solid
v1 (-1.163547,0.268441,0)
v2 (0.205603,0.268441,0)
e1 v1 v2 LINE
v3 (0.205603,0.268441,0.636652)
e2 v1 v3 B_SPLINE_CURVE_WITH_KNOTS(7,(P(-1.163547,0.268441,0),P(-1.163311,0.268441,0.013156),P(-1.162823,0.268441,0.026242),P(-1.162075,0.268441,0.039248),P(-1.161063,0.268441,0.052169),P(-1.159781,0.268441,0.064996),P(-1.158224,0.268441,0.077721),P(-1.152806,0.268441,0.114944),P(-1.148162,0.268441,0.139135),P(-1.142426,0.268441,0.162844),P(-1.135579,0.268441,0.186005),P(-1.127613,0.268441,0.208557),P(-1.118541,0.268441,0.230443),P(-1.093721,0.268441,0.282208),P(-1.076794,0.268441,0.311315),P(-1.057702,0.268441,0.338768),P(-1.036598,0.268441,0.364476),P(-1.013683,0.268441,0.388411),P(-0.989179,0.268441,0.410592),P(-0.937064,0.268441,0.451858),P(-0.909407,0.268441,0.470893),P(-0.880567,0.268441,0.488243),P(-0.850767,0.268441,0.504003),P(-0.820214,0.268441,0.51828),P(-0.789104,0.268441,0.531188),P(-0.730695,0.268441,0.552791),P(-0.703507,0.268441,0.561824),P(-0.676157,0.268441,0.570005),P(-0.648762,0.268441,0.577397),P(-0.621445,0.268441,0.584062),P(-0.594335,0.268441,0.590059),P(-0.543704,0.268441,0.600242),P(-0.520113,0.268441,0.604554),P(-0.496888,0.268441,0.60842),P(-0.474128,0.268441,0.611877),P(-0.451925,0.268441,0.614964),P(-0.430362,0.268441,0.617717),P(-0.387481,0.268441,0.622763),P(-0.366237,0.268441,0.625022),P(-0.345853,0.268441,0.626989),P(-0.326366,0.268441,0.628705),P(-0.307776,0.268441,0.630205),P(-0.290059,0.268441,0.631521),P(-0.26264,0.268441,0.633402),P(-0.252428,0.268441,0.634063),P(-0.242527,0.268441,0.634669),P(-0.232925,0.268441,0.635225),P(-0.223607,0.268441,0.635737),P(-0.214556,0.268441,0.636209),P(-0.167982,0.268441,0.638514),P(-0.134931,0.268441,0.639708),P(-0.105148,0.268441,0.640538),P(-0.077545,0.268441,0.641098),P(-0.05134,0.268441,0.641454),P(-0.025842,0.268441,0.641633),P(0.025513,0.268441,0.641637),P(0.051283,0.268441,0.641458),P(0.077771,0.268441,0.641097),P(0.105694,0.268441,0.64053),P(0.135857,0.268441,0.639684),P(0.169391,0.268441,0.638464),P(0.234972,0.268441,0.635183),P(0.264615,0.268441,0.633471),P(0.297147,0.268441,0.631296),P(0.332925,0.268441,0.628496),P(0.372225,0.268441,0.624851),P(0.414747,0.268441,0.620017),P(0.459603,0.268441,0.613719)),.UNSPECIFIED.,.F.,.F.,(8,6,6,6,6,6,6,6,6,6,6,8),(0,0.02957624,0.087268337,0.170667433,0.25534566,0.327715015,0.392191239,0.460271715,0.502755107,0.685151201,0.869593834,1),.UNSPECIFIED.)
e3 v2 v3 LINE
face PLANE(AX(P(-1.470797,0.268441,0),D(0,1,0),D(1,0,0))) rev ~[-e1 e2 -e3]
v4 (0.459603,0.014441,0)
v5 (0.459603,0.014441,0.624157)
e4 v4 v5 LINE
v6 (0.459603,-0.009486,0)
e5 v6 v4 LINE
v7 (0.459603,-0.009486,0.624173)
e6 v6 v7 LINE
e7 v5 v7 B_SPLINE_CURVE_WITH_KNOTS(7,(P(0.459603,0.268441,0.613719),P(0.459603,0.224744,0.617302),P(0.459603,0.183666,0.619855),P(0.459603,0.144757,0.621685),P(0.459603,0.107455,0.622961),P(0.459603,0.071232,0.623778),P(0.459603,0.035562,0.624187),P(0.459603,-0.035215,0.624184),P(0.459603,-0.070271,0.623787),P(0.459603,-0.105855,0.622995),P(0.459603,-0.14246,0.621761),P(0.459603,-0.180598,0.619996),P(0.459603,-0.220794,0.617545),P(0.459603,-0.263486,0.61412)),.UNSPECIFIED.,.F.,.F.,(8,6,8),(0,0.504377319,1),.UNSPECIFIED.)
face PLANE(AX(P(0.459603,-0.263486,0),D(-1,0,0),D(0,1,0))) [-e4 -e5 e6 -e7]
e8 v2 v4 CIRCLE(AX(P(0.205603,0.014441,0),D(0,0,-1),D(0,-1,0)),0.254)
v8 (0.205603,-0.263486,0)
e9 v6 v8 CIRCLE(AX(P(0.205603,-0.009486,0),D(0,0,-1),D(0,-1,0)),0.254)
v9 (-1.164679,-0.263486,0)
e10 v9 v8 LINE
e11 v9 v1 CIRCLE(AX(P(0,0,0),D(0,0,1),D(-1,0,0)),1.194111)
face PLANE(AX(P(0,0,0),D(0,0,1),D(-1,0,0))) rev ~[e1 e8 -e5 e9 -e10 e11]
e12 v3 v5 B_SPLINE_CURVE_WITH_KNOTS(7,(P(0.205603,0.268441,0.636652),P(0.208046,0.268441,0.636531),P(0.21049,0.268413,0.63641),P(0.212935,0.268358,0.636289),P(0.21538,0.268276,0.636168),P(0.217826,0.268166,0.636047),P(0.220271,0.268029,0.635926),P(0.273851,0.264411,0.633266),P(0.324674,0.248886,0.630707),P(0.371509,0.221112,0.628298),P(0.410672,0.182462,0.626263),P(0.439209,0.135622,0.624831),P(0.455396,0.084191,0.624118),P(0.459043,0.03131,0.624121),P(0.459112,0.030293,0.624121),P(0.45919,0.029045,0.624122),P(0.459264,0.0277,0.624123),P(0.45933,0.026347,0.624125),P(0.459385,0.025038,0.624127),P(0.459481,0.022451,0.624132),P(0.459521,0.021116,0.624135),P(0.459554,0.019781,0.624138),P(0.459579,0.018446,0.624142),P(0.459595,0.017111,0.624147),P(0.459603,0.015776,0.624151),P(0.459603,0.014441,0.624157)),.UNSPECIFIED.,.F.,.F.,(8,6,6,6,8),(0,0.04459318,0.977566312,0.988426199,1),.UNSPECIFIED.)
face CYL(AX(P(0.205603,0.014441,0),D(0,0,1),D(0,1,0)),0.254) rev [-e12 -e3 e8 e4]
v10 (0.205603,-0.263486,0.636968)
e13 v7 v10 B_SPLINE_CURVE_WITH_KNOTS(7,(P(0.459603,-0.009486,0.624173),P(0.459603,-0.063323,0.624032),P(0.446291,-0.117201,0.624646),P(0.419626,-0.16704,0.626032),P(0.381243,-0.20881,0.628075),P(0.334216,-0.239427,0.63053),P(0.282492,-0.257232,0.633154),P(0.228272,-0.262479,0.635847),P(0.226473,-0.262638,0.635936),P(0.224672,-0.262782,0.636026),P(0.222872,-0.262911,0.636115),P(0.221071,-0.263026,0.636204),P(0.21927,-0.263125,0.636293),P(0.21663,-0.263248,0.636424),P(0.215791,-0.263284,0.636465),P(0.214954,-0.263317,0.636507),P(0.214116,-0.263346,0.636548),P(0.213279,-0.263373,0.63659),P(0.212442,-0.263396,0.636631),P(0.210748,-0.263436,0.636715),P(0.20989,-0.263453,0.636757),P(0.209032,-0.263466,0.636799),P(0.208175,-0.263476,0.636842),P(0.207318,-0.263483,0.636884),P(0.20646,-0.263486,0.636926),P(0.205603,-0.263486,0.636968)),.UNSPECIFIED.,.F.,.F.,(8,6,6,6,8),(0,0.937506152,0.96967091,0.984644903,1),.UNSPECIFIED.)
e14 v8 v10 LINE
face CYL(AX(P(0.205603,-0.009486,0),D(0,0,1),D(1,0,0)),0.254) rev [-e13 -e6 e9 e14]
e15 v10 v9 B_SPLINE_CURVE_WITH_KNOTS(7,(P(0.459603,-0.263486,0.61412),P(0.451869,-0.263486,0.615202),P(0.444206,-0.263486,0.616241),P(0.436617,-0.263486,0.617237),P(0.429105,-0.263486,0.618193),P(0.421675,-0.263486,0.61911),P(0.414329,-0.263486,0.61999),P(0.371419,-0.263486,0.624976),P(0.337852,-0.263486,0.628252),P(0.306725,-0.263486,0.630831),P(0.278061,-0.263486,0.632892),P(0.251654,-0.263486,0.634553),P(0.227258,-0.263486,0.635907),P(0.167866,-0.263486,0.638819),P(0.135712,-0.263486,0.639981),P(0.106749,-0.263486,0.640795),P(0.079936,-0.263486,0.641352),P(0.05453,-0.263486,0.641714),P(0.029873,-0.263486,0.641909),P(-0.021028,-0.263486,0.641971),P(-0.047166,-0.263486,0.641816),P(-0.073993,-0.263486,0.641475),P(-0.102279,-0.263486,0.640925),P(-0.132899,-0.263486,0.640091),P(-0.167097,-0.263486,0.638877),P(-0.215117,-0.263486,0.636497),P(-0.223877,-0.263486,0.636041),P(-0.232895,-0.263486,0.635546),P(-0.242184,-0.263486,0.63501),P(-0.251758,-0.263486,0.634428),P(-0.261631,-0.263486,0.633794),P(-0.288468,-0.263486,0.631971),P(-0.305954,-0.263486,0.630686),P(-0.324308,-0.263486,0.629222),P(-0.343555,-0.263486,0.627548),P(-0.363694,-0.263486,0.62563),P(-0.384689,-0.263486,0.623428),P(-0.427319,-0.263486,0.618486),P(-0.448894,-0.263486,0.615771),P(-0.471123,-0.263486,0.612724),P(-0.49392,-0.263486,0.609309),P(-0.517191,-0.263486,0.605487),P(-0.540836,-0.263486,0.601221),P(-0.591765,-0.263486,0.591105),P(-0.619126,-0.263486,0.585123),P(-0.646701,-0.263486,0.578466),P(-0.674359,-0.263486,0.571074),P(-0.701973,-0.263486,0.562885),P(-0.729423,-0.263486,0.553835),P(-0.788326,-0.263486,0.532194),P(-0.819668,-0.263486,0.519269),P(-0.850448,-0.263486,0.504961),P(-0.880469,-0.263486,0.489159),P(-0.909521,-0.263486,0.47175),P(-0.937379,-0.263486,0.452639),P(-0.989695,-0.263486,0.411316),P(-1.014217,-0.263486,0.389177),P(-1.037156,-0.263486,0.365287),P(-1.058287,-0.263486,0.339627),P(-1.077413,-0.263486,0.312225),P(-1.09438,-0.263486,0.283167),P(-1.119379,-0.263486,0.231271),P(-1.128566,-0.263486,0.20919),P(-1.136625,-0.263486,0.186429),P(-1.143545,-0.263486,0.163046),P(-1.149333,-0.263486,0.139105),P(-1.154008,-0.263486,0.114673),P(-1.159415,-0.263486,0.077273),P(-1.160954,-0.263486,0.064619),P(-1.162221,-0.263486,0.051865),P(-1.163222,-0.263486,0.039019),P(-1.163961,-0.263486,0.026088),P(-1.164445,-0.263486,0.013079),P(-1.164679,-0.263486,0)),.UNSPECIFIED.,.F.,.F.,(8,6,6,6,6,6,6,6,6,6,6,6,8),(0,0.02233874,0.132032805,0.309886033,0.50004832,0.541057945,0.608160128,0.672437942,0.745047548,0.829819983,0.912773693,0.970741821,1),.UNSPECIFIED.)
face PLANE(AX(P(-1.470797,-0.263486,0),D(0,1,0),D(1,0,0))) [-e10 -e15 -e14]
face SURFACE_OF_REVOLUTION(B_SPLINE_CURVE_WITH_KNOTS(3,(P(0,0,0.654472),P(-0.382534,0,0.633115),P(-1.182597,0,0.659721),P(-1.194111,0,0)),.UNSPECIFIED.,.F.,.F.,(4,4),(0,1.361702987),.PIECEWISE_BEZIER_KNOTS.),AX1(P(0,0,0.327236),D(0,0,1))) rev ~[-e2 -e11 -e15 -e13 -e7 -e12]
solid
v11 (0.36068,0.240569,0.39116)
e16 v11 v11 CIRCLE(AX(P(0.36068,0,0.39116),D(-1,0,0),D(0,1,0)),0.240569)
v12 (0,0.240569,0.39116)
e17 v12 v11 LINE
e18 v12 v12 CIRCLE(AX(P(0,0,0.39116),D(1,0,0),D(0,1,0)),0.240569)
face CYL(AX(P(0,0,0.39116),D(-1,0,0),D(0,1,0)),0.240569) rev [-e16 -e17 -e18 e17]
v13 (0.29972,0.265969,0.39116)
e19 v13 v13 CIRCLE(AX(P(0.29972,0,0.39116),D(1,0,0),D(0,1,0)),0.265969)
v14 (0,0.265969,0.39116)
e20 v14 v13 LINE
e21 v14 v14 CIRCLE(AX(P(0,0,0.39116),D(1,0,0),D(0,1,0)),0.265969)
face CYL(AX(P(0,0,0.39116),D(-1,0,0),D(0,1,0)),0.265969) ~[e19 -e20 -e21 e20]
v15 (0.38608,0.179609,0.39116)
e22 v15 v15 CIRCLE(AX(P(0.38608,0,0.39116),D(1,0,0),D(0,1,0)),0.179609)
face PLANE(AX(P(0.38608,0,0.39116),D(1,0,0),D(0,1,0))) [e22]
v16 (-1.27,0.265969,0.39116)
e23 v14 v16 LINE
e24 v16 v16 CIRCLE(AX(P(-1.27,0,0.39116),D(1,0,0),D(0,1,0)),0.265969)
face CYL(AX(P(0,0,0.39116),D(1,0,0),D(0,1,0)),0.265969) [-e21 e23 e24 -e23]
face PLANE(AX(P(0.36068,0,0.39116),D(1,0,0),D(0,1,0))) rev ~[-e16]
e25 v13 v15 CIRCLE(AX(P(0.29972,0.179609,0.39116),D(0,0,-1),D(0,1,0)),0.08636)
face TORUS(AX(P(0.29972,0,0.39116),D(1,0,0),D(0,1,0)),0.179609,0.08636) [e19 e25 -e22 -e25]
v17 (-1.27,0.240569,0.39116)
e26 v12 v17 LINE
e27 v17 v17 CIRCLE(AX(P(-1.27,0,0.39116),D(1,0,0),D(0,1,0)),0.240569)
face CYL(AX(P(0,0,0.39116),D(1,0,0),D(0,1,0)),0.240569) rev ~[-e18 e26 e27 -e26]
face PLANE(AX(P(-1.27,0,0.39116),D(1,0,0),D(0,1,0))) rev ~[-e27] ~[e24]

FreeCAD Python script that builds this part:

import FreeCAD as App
import Part
import Sketcher
from FreeCAD import Vector
Q = App.Units.Quantity


def edges_at(feature, points):
    """Names of the edges that pass closest to the given points."""
    edges = feature.Shape.Edges
    near = lambda p: min(range(len(edges)), key=lambda i: edges[i].distToShape(Part.Vertex(*p))[0])
    return sorted({f"Edge{near(p) + 1}" for p in points})


def faces_at(feature, points):
    """Names of the faces that lie closest to the given points."""
    faces = feature.Shape.Faces
    near = lambda p: min(range(len(faces)), key=lambda i: faces[i].distToShape(Part.Vertex(*p))[0])
    return sorted({f"Face{near(p) + 1}" for p in points})

doc = App.newDocument("Part")
body = doc.addObject("PartDesign::Body", "Body")

sketch1 = body.newObject("Sketcher::SketchObject", "Sketch")
sketch1.AttachmentSupport = (doc.getObject("XZ_Plane"), [""])
sketch1.MapMode = "FlatFace"
sketch1.addGeometry(Part.LineSegment(Vector(0, 0, 0), Vector(0, 0.654472, 0)), False)
sketch1.addGeometry(Part.BSplineCurve([Vector(0, 0.654472, 0), Vector(-0.382534, 0.633115, 0), Vector(-1.182597, 0.659721, 0), Vector(-1.194111, 0, 0)], [4, 4], [0, 1.361702987], False, 3, [1, 1, 1, 1], False), False)
sketch1.addGeometry(Part.LineSegment(Vector(-1.194111, 0, 0), Vector(0, 0, 0)), False)
sketch1.addConstraint(Sketcher.Constraint("Block", 1))
sketch1.addConstraint(Sketcher.Constraint("Coincident", 0, 2, 1, 1))
sketch1.addConstraint(Sketcher.Constraint("Coincident", 1, 2, 2, 1))
sketch1.addConstraint(Sketcher.Constraint("Coincident", 2, 2, 0, 1))
sketch1.addConstraint(Sketcher.Constraint("Vertical", 0))
sketch1.addConstraint(Sketcher.Constraint("Horizontal", 2))
revolution = body.newObject("PartDesign::Revolution", "Revolution")
revolution.Profile = sketch1
revolution.ReferenceAxis = (sketch1, ["V_Axis"])
revolution.Angle = 360

sketch2 = body.newObject("Sketcher::SketchObject", "Sketch001")
sketch2.AttachmentSupport = (doc.getObject("XY_Plane"), [""])
sketch2.MapMode = "FlatFace"
sketch2.addGeometry(Part.LineSegment(Vector(-1.470797, 0.268441, 0), Vector(-1.470797, -0.263486, 0)), False)
sketch2.addGeometry(Part.LineSegment(Vector(-1.470797, -0.263486, 0), Vector(0.459603, -0.263486, 0)), False)
sketch2.addGeometry(Part.LineSegment(Vector(0.459603, -0.263486, 0), Vector(0.459603, 0.268441, 0)), False)
sketch2.addGeometry(Part.LineSegment(Vector(0.459603, 0.268441, 0), Vector(-1.470797, 0.268441, 0)), False)
sketch2.addConstraint(Sketcher.Constraint("Coincident", 0, 2, 1, 1))
sketch2.addConstraint(Sketcher.Constraint("Coincident", 1, 2, 2, 1))
sketch2.addConstraint(Sketcher.Constraint("Coincident", 2, 2, 3, 1))
sketch2.addConstraint(Sketcher.Constraint("Coincident", 3, 2, 0, 1))
sketch2.addConstraint(Sketcher.Constraint("Vertical", 0))
sketch2.addConstraint(Sketcher.Constraint("Horizontal", 1))
sketch2.addConstraint(Sketcher.Constraint("Vertical", 2))
sketch2.addConstraint(Sketcher.Constraint("Horizontal", 3))
sketch2.addConstraint(Sketcher.Constraint("DistanceX", 1, 1, 1, 2, Q("0.076 in")))
sketch2.addConstraint(Sketcher.Constraint("DistanceY", 0, 2, 0, 1, 0.531927))
sketch2.addConstraint(Sketcher.Constraint("DistanceY", -1, 1, 2, 2, 0.268441))
sketch2.addConstraint(Sketcher.Constraint("DistanceX", 0, 2, -1, 1, 1.470797))
pocket1 = body.newObject("PartDesign::Pocket", "Pocket")
pocket1.Profile = sketch2
pocket1.Length = Q("0.051 in")
pocket1.Reversed = True
doc.recompute()

fillet = body.newObject("PartDesign::Fillet", "Fillet")
fillet.Base = (pocket1, edges_at(pocket1, [(0.46, 0.268, 0.307), (0.46, -0.263, 0.307)]))
fillet.Radius = Q("0.01 in")
body2 = doc.addObject("PartDesign::Body", "Body001")

sketch3 = body2.newObject("Sketcher::SketchObject", "Sketch002")
sketch3.AttachmentSupport = (doc.getObject("YZ_Plane001"), [""])
sketch3.MapMode = "FlatFace"
sketch3.addGeometry(Part.Circle(Vector(0, 0.39116, 0), Vector(0, 0, 1), 0.265969), False)
sketch3.addConstraint(Sketcher.Constraint("PointOnObject", 0, 3, -2))
sketch3.addConstraint(Sketcher.Constraint("Diameter", 0, 0.531937))
sketch3.addConstraint(Sketcher.Constraint("DistanceY", -1, 1, 0, 3, Q("0.0154 in")))
pad1 = body2.newObject("PartDesign::Pad", "Pad")
pad1.Profile = sketch3
pad1.Type = "TwoLengths"
pad1.Length = Q("0.05 in")
pad1.Length2 = Q("0.0152 in")
pad1.Reversed = True
doc.recompute()

thickness = body2.newObject("PartDesign::Thickness", "Thickness")
thickness.Base = (pad1, faces_at(pad1, [(-1.27, 0, 0.391)]))
thickness.Value = Q("0.001 in")
thickness.Reversed = True
thickness.Join = "Arc"
doc.recompute()

fillet2 = body2.newObject("PartDesign::Fillet", "Fillet001")
fillet2.Base = (thickness, edges_at(thickness, [(0.386, -0.266, 0.391)]))
fillet2.Radius = Q("0.0034 in")

doc.recompute()
